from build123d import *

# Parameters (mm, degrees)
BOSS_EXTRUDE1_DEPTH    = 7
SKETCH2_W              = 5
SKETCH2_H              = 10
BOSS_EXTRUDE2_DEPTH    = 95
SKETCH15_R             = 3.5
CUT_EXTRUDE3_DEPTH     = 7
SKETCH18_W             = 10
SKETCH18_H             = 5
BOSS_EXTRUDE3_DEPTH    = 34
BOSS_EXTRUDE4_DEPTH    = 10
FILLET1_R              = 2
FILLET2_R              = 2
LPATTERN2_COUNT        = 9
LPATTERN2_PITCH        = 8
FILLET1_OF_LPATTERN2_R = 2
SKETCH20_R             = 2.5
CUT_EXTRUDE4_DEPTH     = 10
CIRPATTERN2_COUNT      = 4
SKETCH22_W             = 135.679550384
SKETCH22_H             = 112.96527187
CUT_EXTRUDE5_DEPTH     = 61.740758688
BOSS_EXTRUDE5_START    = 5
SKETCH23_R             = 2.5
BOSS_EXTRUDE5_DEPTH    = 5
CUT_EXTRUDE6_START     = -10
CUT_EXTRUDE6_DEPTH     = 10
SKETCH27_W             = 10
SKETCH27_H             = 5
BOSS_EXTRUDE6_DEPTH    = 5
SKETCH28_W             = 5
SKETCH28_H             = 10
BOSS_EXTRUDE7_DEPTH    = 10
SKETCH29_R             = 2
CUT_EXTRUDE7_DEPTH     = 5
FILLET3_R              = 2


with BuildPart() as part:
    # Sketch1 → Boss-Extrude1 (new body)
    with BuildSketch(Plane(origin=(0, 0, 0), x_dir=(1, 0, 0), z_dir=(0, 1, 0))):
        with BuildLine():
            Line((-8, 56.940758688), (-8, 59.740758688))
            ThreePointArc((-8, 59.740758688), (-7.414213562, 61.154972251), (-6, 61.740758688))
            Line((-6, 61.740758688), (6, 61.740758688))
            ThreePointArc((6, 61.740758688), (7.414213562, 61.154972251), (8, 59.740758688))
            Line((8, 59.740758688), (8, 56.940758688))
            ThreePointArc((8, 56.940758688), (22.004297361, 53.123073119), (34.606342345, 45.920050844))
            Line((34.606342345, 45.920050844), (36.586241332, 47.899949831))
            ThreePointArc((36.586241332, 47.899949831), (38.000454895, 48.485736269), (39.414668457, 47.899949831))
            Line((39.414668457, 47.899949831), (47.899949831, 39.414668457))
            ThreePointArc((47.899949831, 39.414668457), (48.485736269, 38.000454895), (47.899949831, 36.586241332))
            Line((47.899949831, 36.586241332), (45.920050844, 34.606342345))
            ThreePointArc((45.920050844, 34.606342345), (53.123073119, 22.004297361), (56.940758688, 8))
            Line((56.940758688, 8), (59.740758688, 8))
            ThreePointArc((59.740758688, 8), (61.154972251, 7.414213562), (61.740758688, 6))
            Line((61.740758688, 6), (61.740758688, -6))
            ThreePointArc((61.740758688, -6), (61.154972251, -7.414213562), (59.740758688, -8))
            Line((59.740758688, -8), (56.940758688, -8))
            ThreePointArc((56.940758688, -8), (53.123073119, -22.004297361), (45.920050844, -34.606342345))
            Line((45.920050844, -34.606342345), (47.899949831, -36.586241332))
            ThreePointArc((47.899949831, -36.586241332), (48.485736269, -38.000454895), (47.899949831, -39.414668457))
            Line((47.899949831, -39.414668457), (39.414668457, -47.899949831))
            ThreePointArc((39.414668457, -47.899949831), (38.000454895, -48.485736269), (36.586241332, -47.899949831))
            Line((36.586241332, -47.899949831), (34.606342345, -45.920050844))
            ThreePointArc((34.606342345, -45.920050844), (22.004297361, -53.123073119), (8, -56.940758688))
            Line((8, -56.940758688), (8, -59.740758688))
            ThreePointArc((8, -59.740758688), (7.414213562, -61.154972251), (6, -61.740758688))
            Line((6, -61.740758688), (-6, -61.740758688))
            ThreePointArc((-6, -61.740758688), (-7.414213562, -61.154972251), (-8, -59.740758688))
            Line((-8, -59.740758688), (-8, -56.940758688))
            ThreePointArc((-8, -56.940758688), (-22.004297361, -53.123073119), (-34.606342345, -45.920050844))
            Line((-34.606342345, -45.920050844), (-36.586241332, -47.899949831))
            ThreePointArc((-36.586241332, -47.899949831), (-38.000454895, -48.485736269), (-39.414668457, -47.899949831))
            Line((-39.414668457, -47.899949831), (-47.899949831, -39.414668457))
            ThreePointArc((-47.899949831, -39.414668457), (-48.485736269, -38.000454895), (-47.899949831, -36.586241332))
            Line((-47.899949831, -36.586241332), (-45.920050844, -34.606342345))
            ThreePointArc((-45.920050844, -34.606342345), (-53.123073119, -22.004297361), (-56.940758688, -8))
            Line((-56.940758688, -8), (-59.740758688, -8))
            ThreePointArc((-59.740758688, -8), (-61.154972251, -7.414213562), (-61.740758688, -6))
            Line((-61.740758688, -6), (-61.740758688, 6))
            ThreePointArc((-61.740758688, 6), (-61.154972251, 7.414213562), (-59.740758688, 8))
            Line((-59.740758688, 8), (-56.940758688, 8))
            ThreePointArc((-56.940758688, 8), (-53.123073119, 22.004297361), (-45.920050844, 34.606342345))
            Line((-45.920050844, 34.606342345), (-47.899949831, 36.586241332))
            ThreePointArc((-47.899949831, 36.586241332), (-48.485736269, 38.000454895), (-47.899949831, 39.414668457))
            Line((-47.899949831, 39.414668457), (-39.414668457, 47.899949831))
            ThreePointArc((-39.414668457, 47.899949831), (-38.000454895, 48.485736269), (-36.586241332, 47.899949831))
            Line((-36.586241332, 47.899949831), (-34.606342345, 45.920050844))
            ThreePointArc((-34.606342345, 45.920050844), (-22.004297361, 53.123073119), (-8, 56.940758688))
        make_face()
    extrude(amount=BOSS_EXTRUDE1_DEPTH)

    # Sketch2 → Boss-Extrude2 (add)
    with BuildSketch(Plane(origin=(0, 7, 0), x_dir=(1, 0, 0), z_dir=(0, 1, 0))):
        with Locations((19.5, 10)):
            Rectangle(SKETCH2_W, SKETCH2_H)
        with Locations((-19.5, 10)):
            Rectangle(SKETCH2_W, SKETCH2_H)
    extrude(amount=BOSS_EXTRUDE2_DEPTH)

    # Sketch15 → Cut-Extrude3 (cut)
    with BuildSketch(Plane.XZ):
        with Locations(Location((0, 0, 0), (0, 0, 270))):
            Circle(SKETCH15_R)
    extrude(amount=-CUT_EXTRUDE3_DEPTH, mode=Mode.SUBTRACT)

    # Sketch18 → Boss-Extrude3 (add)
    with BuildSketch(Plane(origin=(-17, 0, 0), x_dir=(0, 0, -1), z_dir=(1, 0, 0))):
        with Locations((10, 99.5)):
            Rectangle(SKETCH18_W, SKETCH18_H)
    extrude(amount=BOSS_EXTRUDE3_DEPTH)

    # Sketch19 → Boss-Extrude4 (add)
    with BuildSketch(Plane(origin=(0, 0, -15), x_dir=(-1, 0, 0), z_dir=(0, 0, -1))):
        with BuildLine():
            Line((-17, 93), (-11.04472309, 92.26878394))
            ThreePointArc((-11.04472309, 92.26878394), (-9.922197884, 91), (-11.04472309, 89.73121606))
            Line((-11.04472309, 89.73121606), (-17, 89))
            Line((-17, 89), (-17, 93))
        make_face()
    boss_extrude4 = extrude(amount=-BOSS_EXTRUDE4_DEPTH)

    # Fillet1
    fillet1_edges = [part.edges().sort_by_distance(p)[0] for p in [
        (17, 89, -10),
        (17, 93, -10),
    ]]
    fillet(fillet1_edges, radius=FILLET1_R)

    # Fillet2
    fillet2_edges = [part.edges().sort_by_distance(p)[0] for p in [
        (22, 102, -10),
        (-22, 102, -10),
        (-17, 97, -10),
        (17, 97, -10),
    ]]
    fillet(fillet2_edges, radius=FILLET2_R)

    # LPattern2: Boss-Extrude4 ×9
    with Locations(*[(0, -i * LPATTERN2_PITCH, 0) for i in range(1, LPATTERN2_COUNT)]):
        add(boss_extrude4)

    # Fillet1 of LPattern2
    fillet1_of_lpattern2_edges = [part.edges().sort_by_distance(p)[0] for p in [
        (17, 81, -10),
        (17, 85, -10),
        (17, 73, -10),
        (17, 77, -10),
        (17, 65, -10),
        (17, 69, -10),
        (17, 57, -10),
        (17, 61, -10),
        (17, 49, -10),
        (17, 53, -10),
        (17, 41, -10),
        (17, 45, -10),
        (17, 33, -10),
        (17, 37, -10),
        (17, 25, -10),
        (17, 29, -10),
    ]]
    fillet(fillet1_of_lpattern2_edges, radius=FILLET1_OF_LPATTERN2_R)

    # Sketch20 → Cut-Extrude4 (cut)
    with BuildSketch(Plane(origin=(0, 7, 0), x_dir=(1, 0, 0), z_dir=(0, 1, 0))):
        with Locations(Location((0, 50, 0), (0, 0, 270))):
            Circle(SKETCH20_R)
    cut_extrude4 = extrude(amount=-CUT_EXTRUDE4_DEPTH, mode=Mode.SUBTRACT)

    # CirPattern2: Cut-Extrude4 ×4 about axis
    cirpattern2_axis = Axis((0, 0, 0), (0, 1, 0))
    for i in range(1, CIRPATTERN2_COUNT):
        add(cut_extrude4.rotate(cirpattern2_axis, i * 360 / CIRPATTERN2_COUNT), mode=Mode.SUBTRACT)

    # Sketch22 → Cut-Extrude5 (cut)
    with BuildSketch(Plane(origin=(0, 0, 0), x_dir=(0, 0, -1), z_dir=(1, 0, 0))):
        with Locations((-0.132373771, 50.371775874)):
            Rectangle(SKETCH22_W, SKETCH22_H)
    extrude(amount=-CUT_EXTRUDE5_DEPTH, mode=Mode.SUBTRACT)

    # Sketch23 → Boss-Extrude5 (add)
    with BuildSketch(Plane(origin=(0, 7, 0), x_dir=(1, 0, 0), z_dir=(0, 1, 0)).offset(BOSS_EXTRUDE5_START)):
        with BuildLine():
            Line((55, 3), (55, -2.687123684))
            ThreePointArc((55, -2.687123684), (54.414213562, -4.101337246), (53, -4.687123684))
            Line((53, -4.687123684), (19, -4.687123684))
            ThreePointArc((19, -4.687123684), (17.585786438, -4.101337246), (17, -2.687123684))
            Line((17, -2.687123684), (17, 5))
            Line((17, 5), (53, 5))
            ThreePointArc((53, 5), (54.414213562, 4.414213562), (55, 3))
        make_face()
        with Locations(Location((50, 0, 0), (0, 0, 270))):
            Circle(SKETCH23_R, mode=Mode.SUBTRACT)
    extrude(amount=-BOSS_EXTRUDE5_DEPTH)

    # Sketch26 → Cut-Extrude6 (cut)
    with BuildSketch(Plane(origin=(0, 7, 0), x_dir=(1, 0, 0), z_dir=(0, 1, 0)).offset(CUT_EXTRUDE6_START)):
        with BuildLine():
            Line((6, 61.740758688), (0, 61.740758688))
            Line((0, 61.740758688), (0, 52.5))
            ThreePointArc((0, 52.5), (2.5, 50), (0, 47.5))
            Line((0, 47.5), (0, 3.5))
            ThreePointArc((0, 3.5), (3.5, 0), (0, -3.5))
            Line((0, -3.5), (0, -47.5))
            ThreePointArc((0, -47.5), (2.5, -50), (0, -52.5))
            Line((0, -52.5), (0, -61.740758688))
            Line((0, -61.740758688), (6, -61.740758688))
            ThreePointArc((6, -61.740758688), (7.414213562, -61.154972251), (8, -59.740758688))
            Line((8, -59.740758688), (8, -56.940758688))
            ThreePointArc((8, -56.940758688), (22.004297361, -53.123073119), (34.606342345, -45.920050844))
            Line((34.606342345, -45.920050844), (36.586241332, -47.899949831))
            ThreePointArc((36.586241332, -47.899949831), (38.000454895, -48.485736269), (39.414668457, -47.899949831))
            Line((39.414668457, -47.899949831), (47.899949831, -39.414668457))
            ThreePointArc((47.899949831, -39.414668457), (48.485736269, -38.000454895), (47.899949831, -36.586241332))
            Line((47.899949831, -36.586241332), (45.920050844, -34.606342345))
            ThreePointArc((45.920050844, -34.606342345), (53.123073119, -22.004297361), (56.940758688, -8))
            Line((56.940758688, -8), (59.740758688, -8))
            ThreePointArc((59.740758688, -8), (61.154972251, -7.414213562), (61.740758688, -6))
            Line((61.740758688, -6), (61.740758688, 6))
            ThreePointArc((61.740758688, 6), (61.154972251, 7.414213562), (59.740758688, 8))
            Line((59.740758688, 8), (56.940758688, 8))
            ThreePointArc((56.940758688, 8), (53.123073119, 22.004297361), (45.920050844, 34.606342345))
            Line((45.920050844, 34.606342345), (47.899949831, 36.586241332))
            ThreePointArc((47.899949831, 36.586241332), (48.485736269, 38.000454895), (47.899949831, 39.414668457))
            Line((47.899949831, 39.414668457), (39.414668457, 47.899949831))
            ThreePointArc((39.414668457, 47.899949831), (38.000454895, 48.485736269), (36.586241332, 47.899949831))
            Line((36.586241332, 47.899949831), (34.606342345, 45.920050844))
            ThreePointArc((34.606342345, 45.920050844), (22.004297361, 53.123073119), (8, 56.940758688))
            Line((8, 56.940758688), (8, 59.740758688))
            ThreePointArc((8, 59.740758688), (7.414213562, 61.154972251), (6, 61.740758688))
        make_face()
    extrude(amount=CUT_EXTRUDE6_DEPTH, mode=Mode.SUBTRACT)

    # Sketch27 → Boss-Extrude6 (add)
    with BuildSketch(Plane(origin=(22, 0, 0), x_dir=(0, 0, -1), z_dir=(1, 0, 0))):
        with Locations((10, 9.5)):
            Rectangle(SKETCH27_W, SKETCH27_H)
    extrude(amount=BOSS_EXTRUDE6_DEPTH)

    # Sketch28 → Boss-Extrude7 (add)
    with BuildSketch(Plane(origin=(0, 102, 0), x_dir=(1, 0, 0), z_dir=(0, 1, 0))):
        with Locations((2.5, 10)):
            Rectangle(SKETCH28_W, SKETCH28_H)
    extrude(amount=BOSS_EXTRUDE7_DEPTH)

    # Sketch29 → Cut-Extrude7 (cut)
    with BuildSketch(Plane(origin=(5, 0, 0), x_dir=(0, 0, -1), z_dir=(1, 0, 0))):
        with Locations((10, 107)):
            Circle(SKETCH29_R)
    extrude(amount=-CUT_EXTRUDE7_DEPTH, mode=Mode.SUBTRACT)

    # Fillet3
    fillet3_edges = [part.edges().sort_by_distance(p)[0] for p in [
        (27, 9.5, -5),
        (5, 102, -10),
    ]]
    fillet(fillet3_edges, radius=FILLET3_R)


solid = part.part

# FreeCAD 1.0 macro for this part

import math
import FreeCAD as App
import Part
import Sketcher

V = App.Vector
Q = App.Units.Quantity


def edges_at(feature, points):
    """Names of the edges that pass closest to the given points."""
    edges = feature.Shape.Edges
    near = lambda p: min(range(len(edges)), key=lambda i: edges[i].distToShape(Part.Vertex(*p))[0])
    return sorted({f"Edge{near(p) + 1}" for p in points})

doc = App.newDocument("Part")
body = doc.addObject("PartDesign::Body", "Body")

# Sketch on XZ plane
sketch1 = body.newObject("Sketcher::SketchObject", "Sketch")
sketch1.AttachmentSupport = (doc.getObject("XZ_Plane"), [""])
sketch1.MapMode = "FlatFace"
sketch1.addGeometry(Part.LineSegment(V(-8, -59.7, 0), V(-8, -56.9, 0)), False)
sketch1.addGeometry(Part.ArcOfCircle(Part.Circle(V(0, 0, 0), V(0, 0, 1), 57.5), math.radians(-127), math.radians(-98)), False)
sketch1.addGeometry(Part.LineSegment(V(-34.6, -45.9, 0), V(-36.6, -47.9, 0)), False)
sketch1.addGeometry(Part.ArcOfCircle(Part.Circle(V(-38, -46.5, 0), V(0, 0, 1), 2), math.radians(-135), math.radians(-45)), False)
sketch1.addGeometry(Part.LineSegment(V(-39.4, -47.9, 0), V(-47.9, -39.4, 0)), False)
sketch1.addGeometry(Part.ArcOfCircle(Part.Circle(V(-46.5, -38, 0), V(0, 0, 1), 2), math.radians(135), math.radians(225)), False)
sketch1.addGeometry(Part.LineSegment(V(-47.9, -36.6, 0), V(-45.9, -34.6, 0)), False)
sketch1.addGeometry(Part.ArcOfCircle(Part.Circle(V(0, 0, 0), V(0, 0, 1), 57.5), math.radians(-172), math.radians(-143)), False)
sketch1.addGeometry(Part.LineSegment(V(-56.9, -8, 0), V(-59.7, -8, 0)), False)
sketch1.addGeometry(Part.ArcOfCircle(Part.Circle(V(-59.7, -6, 0), V(0, 0, 1), 2), math.radians(180), math.radians(270)), False)
sketch1.addGeometry(Part.LineSegment(V(-61.7, -6, 0), V(-61.7, 6, 0)), False)
sketch1.addGeometry(Part.ArcOfCircle(Part.Circle(V(-59.7, 6, 0), V(0, 0, 1), 2), math.radians(90), math.radians(180)), False)
sketch1.addGeometry(Part.LineSegment(V(-59.7, 8, 0), V(-56.9, 8, 0)), False)
sketch1.addGeometry(Part.ArcOfCircle(Part.Circle(V(0, 0, 0), V(0, 0, 1), 57.5), math.radians(143), math.radians(172)), False)
sketch1.addGeometry(Part.LineSegment(V(-45.9, 34.6, 0), V(-47.9, 36.6, 0)), False)
sketch1.addGeometry(Part.ArcOfCircle(Part.Circle(V(-46.5, 38, 0), V(0, 0, 1), 2), math.radians(135), math.radians(225)), False)
sketch1.addGeometry(Part.LineSegment(V(-47.9, 39.4, 0), V(-39.4, 47.9, 0)), False)
sketch1.addGeometry(Part.ArcOfCircle(Part.Circle(V(-38, 46.5, 0), V(0, 0, 1), 2), math.radians(45), math.radians(135)), False)
sketch1.addGeometry(Part.LineSegment(V(-36.6, 47.9, 0), V(-34.6, 45.9, 0)), False)
sketch1.addGeometry(Part.ArcOfCircle(Part.Circle(V(0, 0, 0), V(0, 0, 1), 57.5), math.radians(98), math.radians(127)), False)
sketch1.addGeometry(Part.LineSegment(V(-8, 56.9, 0), V(-8, 59.7, 0)), False)
sketch1.addGeometry(Part.ArcOfCircle(Part.Circle(V(-6, 59.7, 0), V(0, 0, 1), 2), math.radians(90), math.radians(180)), False)
sketch1.addGeometry(Part.LineSegment(V(-6, 61.7, 0), V(6, 61.7, 0)), False)
sketch1.addGeometry(Part.ArcOfCircle(Part.Circle(V(6, 59.7, 0), V(0, 0, 1), 2), math.radians(0), math.radians(90)), False)
sketch1.addGeometry(Part.LineSegment(V(8, 59.7, 0), V(8, 56.9, 0)), False)
sketch1.addGeometry(Part.ArcOfCircle(Part.Circle(V(0, 0, 0), V(0, 0, 1), 57.5), math.radians(53), math.radians(82)), False)
sketch1.addGeometry(Part.LineSegment(V(34.6, 45.9, 0), V(36.6, 47.9, 0)), False)
sketch1.addGeometry(Part.ArcOfCircle(Part.Circle(V(38, 46.5, 0), V(0, 0, 1), 2), math.radians(45), math.radians(135)), False)
sketch1.addGeometry(Part.LineSegment(V(39.4, 47.9, 0), V(47.9, 39.4, 0)), False)
sketch1.addGeometry(Part.ArcOfCircle(Part.Circle(V(46.5, 38, 0), V(0, 0, 1), 2), math.radians(-45), math.radians(45)), False)
sketch1.addGeometry(Part.LineSegment(V(47.9, 36.6, 0), V(45.9, 34.6, 0)), False)
sketch1.addGeometry(Part.ArcOfCircle(Part.Circle(V(0, 0, 0), V(0, 0, 1), 57.5), math.radians(8), math.radians(37)), False)
sketch1.addGeometry(Part.LineSegment(V(56.9, 8, 0), V(59.7, 8, 0)), False)
sketch1.addGeometry(Part.ArcOfCircle(Part.Circle(V(59.7, 6, 0), V(0, 0, 1), 2), math.radians(0), math.radians(90)), False)
sketch1.addGeometry(Part.LineSegment(V(61.7, 6, 0), V(61.7, -6, 0)), False)
sketch1.addGeometry(Part.ArcOfCircle(Part.Circle(V(59.7, -6, 0), V(0, 0, 1), 2), math.radians(-90), math.radians(0)), False)
sketch1.addGeometry(Part.LineSegment(V(59.7, -8, 0), V(56.9, -8, 0)), False)
sketch1.addGeometry(Part.ArcOfCircle(Part.Circle(V(0, 0, 0), V(0, 0, 1), 57.5), math.radians(-37), math.radians(-8)), False)
sketch1.addGeometry(Part.LineSegment(V(45.9, -34.6, 0), V(47.9, -36.6, 0)), False)
sketch1.addGeometry(Part.ArcOfCircle(Part.Circle(V(46.5, -38, 0), V(0, 0, 1), 2), math.radians(-45), math.radians(45)), False)
sketch1.addGeometry(Part.LineSegment(V(47.9, -39.4, 0), V(39.4, -47.9, 0)), False)
sketch1.addGeometry(Part.ArcOfCircle(Part.Circle(V(38, -46.5, 0), V(0, 0, 1), 2), math.radians(-135), math.radians(-45)), False)
sketch1.addGeometry(Part.LineSegment(V(36.6, -47.9, 0), V(34.6, -45.9, 0)), False)
sketch1.addGeometry(Part.ArcOfCircle(Part.Circle(V(0, 0, 0), V(0, 0, 1), 57.5), math.radians(-82), math.radians(-53)), False)
sketch1.addGeometry(Part.LineSegment(V(8, -56.9, 0), V(8, -59.7, 0)), False)
sketch1.addGeometry(Part.ArcOfCircle(Part.Circle(V(6, -59.7, 0), V(0, 0, 1), 2), math.radians(-90), math.radians(0)), False)
sketch1.addGeometry(Part.LineSegment(V(6, -61.7, 0), V(-6, -61.7, 0)), False)
sketch1.addGeometry(Part.ArcOfCircle(Part.Circle(V(-6, -59.7, 0), V(0, 0, 1), 2), math.radians(180), math.radians(270)), False)
sketch1.addConstraint(Sketcher.Constraint("Coincident", 0, 2, 1, 2))
sketch1.addConstraint(Sketcher.Constraint("Coincident", 1, 1, 2, 1))
sketch1.addConstraint(Sketcher.Constraint("Tangent", 2, 2, 3, 2))
sketch1.addConstraint(Sketcher.Constraint("Tangent", 3, 1, 4, 1))
sketch1.addConstraint(Sketcher.Constraint("Tangent", 4, 2, 5, 2))
sketch1.addConstraint(Sketcher.Constraint("Tangent", 5, 1, 6, 1))
sketch1.addConstraint(Sketcher.Constraint("Coincident", 6, 2, 7, 2))
sketch1.addConstraint(Sketcher.Constraint("Coincident", 7, 1, 8, 1))
sketch1.addConstraint(Sketcher.Constraint("Tangent", 8, 2, 9, 2))
sketch1.addConstraint(Sketcher.Constraint("Tangent", 9, 1, 10, 1))
sketch1.addConstraint(Sketcher.Constraint("Tangent", 10, 2, 11, 2))
sketch1.addConstraint(Sketcher.Constraint("Tangent", 11, 1, 12, 1))
sketch1.addConstraint(Sketcher.Constraint("Coincident", 12, 2, 13, 2))
sketch1.addConstraint(Sketcher.Constraint("Coincident", 13, 1, 14, 1))
sketch1.addConstraint(Sketcher.Constraint("Tangent", 14, 2, 15, 2))
sketch1.addConstraint(Sketcher.Constraint("Tangent", 15, 1, 16, 1))
sketch1.addConstraint(Sketcher.Constraint("Tangent", 16, 2, 17, 2))
sketch1.addConstraint(Sketcher.Constraint("Tangent", 17, 1, 18, 1))
sketch1.addConstraint(Sketcher.Constraint("Coincident", 18, 2, 19, 2))
sketch1.addConstraint(Sketcher.Constraint("Coincident", 19, 1, 20, 1))
sketch1.addConstraint(Sketcher.Constraint("Tangent", 20, 2, 21, 2))
sketch1.addConstraint(Sketcher.Constraint("Tangent", 21, 1, 22, 1))
sketch1.addConstraint(Sketcher.Constraint("Tangent", 22, 2, 23, 2))
sketch1.addConstraint(Sketcher.Constraint("Tangent", 23, 1, 24, 1))
sketch1.addConstraint(Sketcher.Constraint("Coincident", 24, 2, 25, 2))
sketch1.addConstraint(Sketcher.Constraint("Coincident", 25, 1, 26, 1))
sketch1.addConstraint(Sketcher.Constraint("Tangent", 26, 2, 27, 2))
sketch1.addConstraint(Sketcher.Constraint("Tangent", 27, 1, 28, 1))
sketch1.addConstraint(Sketcher.Constraint("Tangent", 28, 2, 29, 2))
sketch1.addConstraint(Sketcher.Constraint("Tangent", 29, 1, 30, 1))
sketch1.addConstraint(Sketcher.Constraint("Coincident", 30, 2, 31, 2))
sketch1.addConstraint(Sketcher.Constraint("Coincident", 31, 1, 32, 1))
sketch1.addConstraint(Sketcher.Constraint("Tangent", 32, 2, 33, 2))
sketch1.addConstraint(Sketcher.Constraint("Tangent", 33, 1, 34, 1))
sketch1.addConstraint(Sketcher.Constraint("Tangent", 34, 2, 35, 2))
sketch1.addConstraint(Sketcher.Constraint("Tangent", 35, 1, 36, 1))
sketch1.addConstraint(Sketcher.Constraint("Coincident", 36, 2, 37, 2))
sketch1.addConstraint(Sketcher.Constraint("Coincident", 37, 1, 38, 1))
sketch1.addConstraint(Sketcher.Constraint("Tangent", 38, 2, 39, 2))
sketch1.addConstraint(Sketcher.Constraint("Tangent", 39, 1, 40, 1))
sketch1.addConstraint(Sketcher.Constraint("Tangent", 40, 2, 41, 2))
sketch1.addConstraint(Sketcher.Constraint("Tangent", 41, 1, 42, 1))
sketch1.addConstraint(Sketcher.Constraint("Coincident", 42, 2, 43, 2))
sketch1.addConstraint(Sketcher.Constraint("Coincident", 43, 1, 44, 1))
sketch1.addConstraint(Sketcher.Constraint("Tangent", 44, 2, 45, 2))
sketch1.addConstraint(Sketcher.Constraint("Tangent", 45, 1, 46, 1))
sketch1.addConstraint(Sketcher.Constraint("Tangent", 46, 2, 47, 2))
sketch1.addConstraint(Sketcher.Constraint("Tangent", 47, 1, 0, 1))
sketch1.addConstraint(Sketcher.Constraint("Vertical", 0))
sketch1.addConstraint(Sketcher.Constraint("Horizontal", 8))
sketch1.addConstraint(Sketcher.Constraint("Vertical", 10))
sketch1.addConstraint(Sketcher.Constraint("Horizontal", 12))
sketch1.addConstraint(Sketcher.Constraint("Vertical", 20))
sketch1.addConstraint(Sketcher.Constraint("Horizontal", 22))
sketch1.addConstraint(Sketcher.Constraint("Vertical", 24))
sketch1.addConstraint(Sketcher.Constraint("Horizontal", 32))
sketch1.addConstraint(Sketcher.Constraint("Vertical", 34))
sketch1.addConstraint(Sketcher.Constraint("Horizontal", 36))
sketch1.addConstraint(Sketcher.Constraint("Vertical", 44))
sketch1.addConstraint(Sketcher.Constraint("Horizontal", 46))
sketch1.addConstraint(Sketcher.Constraint("Coincident", 1, 3, -1, 1))
sketch1.addConstraint(Sketcher.Constraint("Coincident", 7, 3, -1, 1))
sketch1.addConstraint(Sketcher.Constraint("Coincident", 13, 3, -1, 1))
sketch1.addConstraint(Sketcher.Constraint("Coincident", 19, 3, -1, 1))
sketch1.addConstraint(Sketcher.Constraint("Coincident", 25, 3, -1, 1))
sketch1.addConstraint(Sketcher.Constraint("Coincident", 31, 3, -1, 1))
sketch1.addConstraint(Sketcher.Constraint("Coincident", 37, 3, -1, 1))
sketch1.addConstraint(Sketcher.Constraint("Coincident", 43, 3, -1, 1))
sketch1.addConstraint(Sketcher.Constraint("Equal", 3, 5))
sketch1.addConstraint(Sketcher.Constraint("Equal", 1, 7))
sketch1.addConstraint(Sketcher.Constraint("Equal", 5, 9))
sketch1.addConstraint(Sketcher.Constraint("Equal", 9, 11))
sketch1.addConstraint(Sketcher.Constraint("Equal", 7, 13))
sketch1.addConstraint(Sketcher.Constraint("Equal", 11, 15))
sketch1.addConstraint(Sketcher.Constraint("Equal", 15, 17))
sketch1.addConstraint(Sketcher.Constraint("Equal", 13, 19))
sketch1.addConstraint(Sketcher.Constraint("Equal", 17, 21))
sketch1.addConstraint(Sketcher.Constraint("Equal", 21, 23))
sketch1.addConstraint(Sketcher.Constraint("Equal", 19, 25))
sketch1.addConstraint(Sketcher.Constraint("Equal", 23, 27))
sketch1.addConstraint(Sketcher.Constraint("Equal", 27, 29))
sketch1.addConstraint(Sketcher.Constraint("Equal", 25, 31))
sketch1.addConstraint(Sketcher.Constraint("Equal", 29, 33))
sketch1.addConstraint(Sketcher.Constraint("Equal", 33, 35))
sketch1.addConstraint(Sketcher.Constraint("Equal", 31, 37))
sketch1.addConstraint(Sketcher.Constraint("Equal", 35, 39))
sketch1.addConstraint(Sketcher.Constraint("Equal", 39, 41))
sketch1.addConstraint(Sketcher.Constraint("Equal", 37, 43))
sketch1.addConstraint(Sketcher.Constraint("Equal", 41, 45))
sketch1.addConstraint(Sketcher.Constraint("Equal", 45, 47))
sketch1.addConstraint(Sketcher.Constraint("Symmetric", 3, 3, 27, 3, -1, 1))
sketch1.addConstraint(Sketcher.Constraint("Symmetric", 5, 3, 29, 3, -1, 1))
sketch1.addConstraint(Sketcher.Constraint("Symmetric", 9, 3, 33, 3, -1, 1))
sketch1.addConstraint(Sketcher.Constraint("Symmetric", 15, 3, 39, 3, -1, 1))
sketch1.addConstraint(Sketcher.Constraint("Symmetric", 17, 3, 41, 3, -1, 1))
sketch1.addConstraint(Sketcher.Constraint("Symmetric", 21, 3, 45, 3, -1, 1))
sketch1.addConstraint(Sketcher.Constraint("Symmetric", 17, 3, 27, 3, -2))
sketch1.addConstraint(Sketcher.Constraint("Symmetric", 15, 3, 29, 3, -2))
sketch1.addConstraint(Sketcher.Constraint("Perpendicular", 2, 4))
sketch1.addConstraint(Sketcher.Constraint("Perpendicular", 4, 6))
sketch1.addConstraint(Sketcher.Constraint("Perpendicular", 6, 14))
sketch1.addConstraint(Sketcher.Constraint("Perpendicular", 14, 16))
sketch1.addConstraint(Sketcher.Constraint("Perpendicular", 16, 18))
sketch1.addConstraint(Sketcher.Constraint("Perpendicular", 18, 26))
sketch1.addConstraint(Sketcher.Constraint("Perpendicular", 28, 30))
sketch1.addConstraint(Sketcher.Constraint("Perpendicular", 30, 38))
sketch1.addConstraint(Sketcher.Constraint("Perpendicular", 40, 42))
sketch1.addConstraint(Sketcher.Constraint("Horizontal", 11, 3, 33, 3))
sketch1.addConstraint(Sketcher.Constraint("Horizontal", 9, 3, 35, 3))
sketch1.addConstraint(Sketcher.Constraint("Horizontal", 19, 1, 24, 2))
sketch1.addConstraint(Sketcher.Constraint("Horizontal", 0, 2, 43, 1))
sketch1.addConstraint(Sketcher.Constraint("Equal", 36, 0))
sketch1.addConstraint(Sketcher.Constraint("Equal", 46, 10))
sketch1.addConstraint(Sketcher.Constraint("Equal", 2, 6))
sketch1.addConstraint(Sketcher.Constraint("Radius", 3, 2.0))
sketch1.addConstraint(Sketcher.Constraint("Radius", 1, 57.5))
sketch1.addConstraint(Sketcher.Constraint("DistanceX", 22, 1, 22, 2, 12.0))
sketch1.addConstraint(Sketcher.Constraint("Distance", 4, 12.0))
sketch1.addConstraint(Sketcher.Constraint("DistanceX", 8, 2, 8, 1, 2.8))
sketch1.addConstraint(Sketcher.Constraint("Distance", 2, 2.8))
pad1 = body.newObject("PartDesign::Pad", "Pad")
pad1.Profile = sketch1
pad1.Length = 7
pad1.Reversed = True

# Sketch on XZ plane
sketch2 = body.newObject("Sketcher::SketchObject", "Sketch001")
sketch2.AttachmentSupport = (doc.getObject("XZ_Plane"), [""])
sketch2.MapMode = "FlatFace"
sketch2.AttachmentOffset = App.Placement(V(0, 0, -7), App.Rotation())
sketch2.addGeometry(Part.LineSegment(V(17, -15, 0), V(17, -5, 0)), False)
sketch2.addGeometry(Part.LineSegment(V(17, -5, 0), V(22, -5, 0)), False)
sketch2.addGeometry(Part.LineSegment(V(22, -5, 0), V(22, -15, 0)), False)
sketch2.addGeometry(Part.LineSegment(V(22, -15, 0), V(17, -15, 0)), False)
sketch2.addGeometry(Part.LineSegment(V(-22, -15, 0), V(-22, -5, 0)), False)
sketch2.addGeometry(Part.LineSegment(V(-22, -5, 0), V(-17, -5, 0)), False)
sketch2.addGeometry(Part.LineSegment(V(-17, -5, 0), V(-17, -15, 0)), False)
sketch2.addGeometry(Part.LineSegment(V(-17, -15, 0), V(-22, -15, 0)), False)
sketch2.addConstraint(Sketcher.Constraint("Coincident", 0, 2, 1, 1))
sketch2.addConstraint(Sketcher.Constraint("Coincident", 1, 2, 2, 1))
sketch2.addConstraint(Sketcher.Constraint("Coincident", 2, 2, 3, 1))
sketch2.addConstraint(Sketcher.Constraint("Coincident", 3, 2, 0, 1))
sketch2.addConstraint(Sketcher.Constraint("Coincident", 4, 2, 5, 1))
sketch2.addConstraint(Sketcher.Constraint("Coincident", 5, 2, 6, 1))
sketch2.addConstraint(Sketcher.Constraint("Coincident", 6, 2, 7, 1))
sketch2.addConstraint(Sketcher.Constraint("Coincident", 7, 2, 4, 1))
sketch2.addConstraint(Sketcher.Constraint("Vertical", 0))
sketch2.addConstraint(Sketcher.Constraint("Horizontal", 1))
sketch2.addConstraint(Sketcher.Constraint("Vertical", 2))
sketch2.addConstraint(Sketcher.Constraint("Horizontal", 3))
sketch2.addConstraint(Sketcher.Constraint("Vertical", 4))
sketch2.addConstraint(Sketcher.Constraint("Horizontal", 5))
sketch2.addConstraint(Sketcher.Constraint("Vertical", 6))
sketch2.addConstraint(Sketcher.Constraint("Horizontal", 7))
sketch2.addConstraint(Sketcher.Constraint("Symmetric", 1, 2, 4, 2, -2))
sketch2.addConstraint(Sketcher.Constraint("Symmetric", 3, 2, 6, 2, -2))
sketch2.addConstraint(Sketcher.Constraint("DistanceX", 1, 1, 1, 2, 5.0))
sketch2.addConstraint(Sketcher.Constraint("DistanceY", 0, 1, 0, 2, 10.0))
sketch2.addConstraint(Sketcher.Constraint("DistanceX", -1, 1, 0, 2, 17.0))
sketch2.addConstraint(Sketcher.Constraint("DistanceY", 0, 2, -1, 1, 5.0))
pad2 = body.newObject("PartDesign::Pad", "Pad001")
pad2.Profile = sketch2
pad2.Length = 95
pad2.Reversed = True

# Sketch on XZ plane
sketch3 = body.newObject("Sketcher::SketchObject", "Sketch002")
sketch3.AttachmentSupport = (doc.getObject("XZ_Plane"), [""])
sketch3.MapMode = "FlatFace"
sketch3.addGeometry(Part.Circle(V(0, 0, 0), V(0, 0, 1), 3.5), False)
sketch3.addConstraint(Sketcher.Constraint("Coincident", 0, 3, -1, 1))
sketch3.addConstraint(Sketcher.Constraint("Diameter", 0, 7.0))
pocket1 = body.newObject("PartDesign::Pocket", "Pocket")
pocket1.Profile = sketch3
pocket1.Length = 7

# Sketch on YZ plane
sketch4 = body.newObject("Sketcher::SketchObject", "Sketch003")
sketch4.AttachmentSupport = (doc.getObject("YZ_Plane"), [""])
sketch4.MapMode = "FlatFace"
sketch4.AttachmentOffset = App.Placement(V(0, 0, -17), App.Rotation())
sketch4.addGeometry(Part.LineSegment(V(102, -5, 0), V(97, -5, 0)), False)
sketch4.addGeometry(Part.LineSegment(V(97, -5, 0), V(97, -15, 0)), False)
sketch4.addGeometry(Part.LineSegment(V(97, -15, 0), V(102, -15, 0)), False)
sketch4.addGeometry(Part.LineSegment(V(102, -15, 0), V(102, -5, 0)), False)
sketch4.addConstraint(Sketcher.Constraint("Coincident", 0, 2, 1, 1))
sketch4.addConstraint(Sketcher.Constraint("Coincident", 1, 2, 2, 1))
sketch4.addConstraint(Sketcher.Constraint("Coincident", 2, 2, 3, 1))
sketch4.addConstraint(Sketcher.Constraint("Coincident", 3, 2, 0, 1))
sketch4.addConstraint(Sketcher.Constraint("Horizontal", 0))
sketch4.addConstraint(Sketcher.Constraint("Vertical", 1))
sketch4.addConstraint(Sketcher.Constraint("Horizontal", 2))
sketch4.addConstraint(Sketcher.Constraint("Vertical", 3))
sketch4.addConstraint(Sketcher.Constraint("DistanceX", 0, 2, 0, 1, 5.0))
sketch4.addConstraint(Sketcher.Constraint("DistanceY", 1, 2, 1, 1, 10.0))
sketch4.addConstraint(Sketcher.Constraint("DistanceX", -1, 1, 0, 2, 97.0))
sketch4.addConstraint(Sketcher.Constraint("DistanceY", 0, 2, -1, 1, 5.0))
pad3 = body.newObject("PartDesign::Pad", "Pad002")
pad3.Profile = sketch4
pad3.Length = 34

# Sketch on XY plane
sketch5 = body.newObject("Sketcher::SketchObject", "Sketch004")
sketch5.AttachmentSupport = (doc.getObject("XY_Plane"), [""])
sketch5.MapMode = "FlatFace"
sketch5.AttachmentOffset = App.Placement(V(0, 0, -15), App.Rotation())
sketch5.addGeometry(Part.LineSegment(V(11, 92.3, 0), V(17, 93, 0)), False)
sketch5.addGeometry(Part.LineSegment(V(17, 93, 0), V(17, 89, 0)), False)
sketch5.addGeometry(Part.LineSegment(V(17, 89, 0), V(11, 89.7, 0)), False)
sketch5.addGeometry(Part.ArcOfCircle(Part.Circle(V(11.2, 91, 0), V(0, 0, 1), 1.3), math.radians(97), math.radians(263)), False)
sketch5.addConstraint(Sketcher.Constraint("Coincident", 0, 2, 1, 1))
sketch5.addConstraint(Sketcher.Constraint("Coincident", 1, 2, 2, 1))
sketch5.addConstraint(Sketcher.Constraint("Tangent", 2, 2, 3, 2))
sketch5.addConstraint(Sketcher.Constraint("Tangent", 3, 1, 0, 1))
sketch5.addConstraint(Sketcher.Constraint("Vertical", 1))
sketch5.addConstraint(Sketcher.Constraint("Vertical", 2, 2, 3, 1))
sketch5.addConstraint(Sketcher.Constraint("DistanceY", 1, 2, 1, 1, 4.0))
sketch5.addConstraint(Sketcher.Constraint("Angle", 0, Q("7 deg")))
sketch5.addConstraint(Sketcher.Constraint("Distance", 0, 6.0))
sketch5.addConstraint(Sketcher.Constraint("DistanceY", -1, 1, 3, 3, 91.0))
sketch5.addConstraint(Sketcher.Constraint("DistanceX", -1, 1, 0, 2, 17.0))
pad4 = body.newObject("PartDesign::Pad", "Pad003")
pad4.Profile = sketch5
pad4.Length = 10
doc.recompute()

fillet = body.newObject("PartDesign::Fillet", "Fillet")
fillet.Base = (pad4, edges_at(pad4, [(17, 89, -10), (17, 93, -10)]))
fillet.Radius = 2
doc.recompute()

fillet2 = body.newObject("PartDesign::Fillet", "Fillet001")
fillet2.Base = (fillet, edges_at(fillet, [
    (22, 102, -10),
    (-22, 102, -10),
    (-17, 97, -10),
    (17, 97, -10),
]))
fillet2.Radius = 2
doc.recompute()

linearpattern = body.newObject("PartDesign::LinearPattern", "LinearPattern")
linearpattern.Originals = [pad4]
linearpattern.Direction = (doc.getObject("Y_Axis"), [""])
linearpattern.Mode = "offset"
linearpattern.Offset = 8
linearpattern.Occurrences = 9
linearpattern.Reversed = True
body.Tip = linearpattern
doc.recompute()

fillet3 = body.newObject("PartDesign::Fillet", "Fillet002")
fillet3.Base = (linearpattern, edges_at(linearpattern, [
    (17, 81, -10),
    (17, 85, -10),
    (17, 73, -10),
    (17, 77, -10),
    (17, 65, -10),
    (17, 69, -10),
    (17, 57, -10),
    (17, 61, -10),
    (17, 49, -10),
    (17, 53, -10),
    (17, 41, -10),
    (17, 45, -10),
    (17, 33, -10),
    (17, 37, -10),
    (17, 25, -10),
    (17, 29, -10),
]))
fillet3.Radius = 2

# Sketch on XZ plane
sketch6 = body.newObject("Sketcher::SketchObject", "Sketch005")
sketch6.AttachmentSupport = (doc.getObject("XZ_Plane"), [""])
sketch6.MapMode = "FlatFace"
sketch6.AttachmentOffset = App.Placement(V(0, 0, -7), App.Rotation())
sketch6.addGeometry(Part.Circle(V(0, -50, 0), V(0, 0, 1), 2.5), False)
sketch6.addConstraint(Sketcher.Constraint("PointOnObject", 0, 3, -2))
sketch6.addConstraint(Sketcher.Constraint("Diameter", 0, 5.0))
sketch6.addConstraint(Sketcher.Constraint("DistanceY", 0, 3, -1, 1, 50.0))
pocket2 = body.newObject("PartDesign::Pocket", "Pocket001")
pocket2.Profile = sketch6
pocket2.Length = 10
pocket2.Reversed = True
doc.recompute()

polarpattern = body.newObject("PartDesign::PolarPattern", "PolarPattern")
polarpattern.Originals = [pocket2]
polarpattern.Axis = (doc.getObject("Y_Axis"), [""])
polarpattern.Angle = 360
polarpattern.Occurrences = 4
body.Tip = polarpattern

# Sketch on YZ plane
sketch7 = body.newObject("Sketcher::SketchObject", "Sketch006")
sketch7.AttachmentSupport = (doc.getObject("YZ_Plane"), [""])
sketch7.MapMode = "FlatFace"
sketch7.addGeometry(Part.LineSegment(V(107, 68, 0), V(-6, 68, 0)), False)
sketch7.addGeometry(Part.LineSegment(V(-6, 68, 0), V(-6, -68, 0)), False)
sketch7.addGeometry(Part.LineSegment(V(-6, -68, 0), V(107, -68, 0)), False)
sketch7.addGeometry(Part.LineSegment(V(107, -68, 0), V(107, 68, 0)), False)
sketch7.addConstraint(Sketcher.Constraint("Coincident", 0, 2, 1, 1))
sketch7.addConstraint(Sketcher.Constraint("Coincident", 1, 2, 2, 1))
sketch7.addConstraint(Sketcher.Constraint("Coincident", 2, 2, 3, 1))
sketch7.addConstraint(Sketcher.Constraint("Coincident", 3, 2, 0, 1))
sketch7.addConstraint(Sketcher.Constraint("Horizontal", 0))
sketch7.addConstraint(Sketcher.Constraint("Vertical", 1))
sketch7.addConstraint(Sketcher.Constraint("Horizontal", 2))
sketch7.addConstraint(Sketcher.Constraint("Vertical", 3))
sketch7.addConstraint(Sketcher.Constraint("DistanceX", 0, 2, 0, 1, 112.965272))
sketch7.addConstraint(Sketcher.Constraint("DistanceY", 1, 2, 1, 1, 135.67955))
sketch7.addConstraint(Sketcher.Constraint("DistanceY", 1, 2, -1, 1, 67.707401))
sketch7.addConstraint(Sketcher.Constraint("DistanceX", 0, 2, -1, 1, 6.11086))
pocket3 = body.newObject("PartDesign::Pocket", "Pocket002")
pocket3.Profile = sketch7
pocket3.Length = 61.740759

# Sketch on XZ plane
sketch8 = body.newObject("Sketcher::SketchObject", "Sketch007")
sketch8.AttachmentSupport = (doc.getObject("XZ_Plane"), [""])
sketch8.MapMode = "FlatFace"
sketch8.AttachmentOffset = App.Placement(V(0, 0, -12), App.Rotation())
sketch8.addGeometry(Part.LineSegment(V(55, 2.7, 0), V(55, -3, 0)), False)
sketch8.addGeometry(Part.ArcOfCircle(Part.Circle(V(53, -3, 0), V(0, 0, 1), 2), math.radians(-90), math.radians(0)), False)
sketch8.addGeometry(Part.LineSegment(V(53, -5, 0), V(17, -5, 0)), False)
sketch8.addGeometry(Part.LineSegment(V(17, -5, 0), V(17, 2.7, 0)), False)
sketch8.addGeometry(Part.ArcOfCircle(Part.Circle(V(19, 2.7, 0), V(0, 0, 1), 2), math.radians(90), math.radians(180)), False)
sketch8.addGeometry(Part.LineSegment(V(19, 4.7, 0), V(53, 4.7, 0)), False)
sketch8.addGeometry(Part.ArcOfCircle(Part.Circle(V(53, 2.7, 0), V(0, 0, 1), 2), math.radians(0), math.radians(90)), False)
sketch8.addGeometry(Part.Circle(V(50, 0, 0), V(0, 0, 1), 2.5), False)
sketch8.addConstraint(Sketcher.Constraint("Tangent", 0, 2, 1, 2))
sketch8.addConstraint(Sketcher.Constraint("Tangent", 1, 1, 2, 1))
sketch8.addConstraint(Sketcher.Constraint("Coincident", 2, 2, 3, 1))
sketch8.addConstraint(Sketcher.Constraint("Tangent", 3, 2, 4, 2))
sketch8.addConstraint(Sketcher.Constraint("Tangent", 4, 1, 5, 1))
sketch8.addConstraint(Sketcher.Constraint("Tangent", 5, 2, 6, 2))
sketch8.addConstraint(Sketcher.Constraint("Tangent", 6, 1, 0, 1))
sketch8.addConstraint(Sketcher.Constraint("Vertical", 0))
sketch8.addConstraint(Sketcher.Constraint("Horizontal", 2))
sketch8.addConstraint(Sketcher.Constraint("Vertical", 3))
sketch8.addConstraint(Sketcher.Constraint("Horizontal", 5))
sketch8.addConstraint(Sketcher.Constraint("Equal", 1, 4))
sketch8.addConstraint(Sketcher.Constraint("Equal", 4, 6))
sketch8.addConstraint(Sketcher.Constraint("PointOnObject", 7, 3, -1))
sketch8.addConstraint(Sketcher.Constraint("Diameter", 7, 5.0))
sketch8.addConstraint(Sketcher.Constraint("Radius", 1, 2.0))
sketch8.addConstraint(Sketcher.Constraint("DistanceX", 2, 2, 2, 1, 36.0))
sketch8.addConstraint(Sketcher.Constraint("DistanceX", -1, 1, 1, 3, 53.0))
sketch8.addConstraint(Sketcher.Constraint("DistanceY", 1, 3, -1, 1, 3.0))
sketch8.addConstraint(Sketcher.Constraint("DistanceX", -1, 1, 7, 3, 50.0))
sketch8.addConstraint(Sketcher.Constraint("DistanceY", 0, 2, 0, 1, 5.687124))
pad5 = body.newObject("PartDesign::Pad", "Pad004")
pad5.Profile = sketch8
pad5.Length = 5

# Sketch on XZ plane
sketch9 = body.newObject("Sketcher::SketchObject", "Sketch008")
sketch9.AttachmentSupport = (doc.getObject("XZ_Plane"), [""])
sketch9.MapMode = "FlatFace"
sketch9.AttachmentOffset = App.Placement(V(0, 0, 3), App.Rotation())
sketch9.addGeometry(Part.LineSegment(V(6, -61.7, 0), V(0, -61.7, 0)), False)
sketch9.addGeometry(Part.LineSegment(V(0, -61.7, 0), V(0, -52.5, 0)), False)
sketch9.addGeometry(Part.ArcOfCircle(Part.Circle(V(0, -50, 0), V(0, 0, 1), 2.5), math.radians(-90), math.radians(90)), False)
sketch9.addGeometry(Part.LineSegment(V(0, -47.5, 0), V(0, -3.5, 0)), False)
sketch9.addGeometry(Part.ArcOfCircle(Part.Circle(V(0, 0, 0), V(0, 0, 1), 3.5), math.radians(-90), math.radians(90)), False)
sketch9.addGeometry(Part.LineSegment(V(0, 3.5, 0), V(0, 47.5, 0)), False)
sketch9.addGeometry(Part.ArcOfCircle(Part.Circle(V(0, 50, 0), V(0, 0, 1), 2.5), math.radians(-90), math.radians(90)), False)
sketch9.addGeometry(Part.LineSegment(V(0, 52.5, 0), V(0, 61.7, 0)), False)
sketch9.addGeometry(Part.LineSegment(V(0, 61.7, 0), V(6, 61.7, 0)), False)
sketch9.addGeometry(Part.ArcOfCircle(Part.Circle(V(6, 59.7, 0), V(0, 0, 1), 2), math.radians(0), math.radians(90)), False)
sketch9.addGeometry(Part.LineSegment(V(8, 59.7, 0), V(8, 56.9, 0)), False)
sketch9.addGeometry(Part.ArcOfCircle(Part.Circle(V(0, 0, 0), V(0, 0, 1), 57.5), math.radians(53), math.radians(82)), False)
sketch9.addGeometry(Part.LineSegment(V(34.6, 45.9, 0), V(36.6, 47.9, 0)), False)
sketch9.addGeometry(Part.ArcOfCircle(Part.Circle(V(38, 46.5, 0), V(0, 0, 1), 2), math.radians(45), math.radians(135)), False)
sketch9.addGeometry(Part.LineSegment(V(39.4, 47.9, 0), V(47.9, 39.4, 0)), False)
sketch9.addGeometry(Part.ArcOfCircle(Part.Circle(V(46.5, 38, 0), V(0, 0, 1), 2), math.radians(-45), math.radians(45)), False)
sketch9.addGeometry(Part.LineSegment(V(47.9, 36.6, 0), V(45.9, 34.6, 0)), False)
sketch9.addGeometry(Part.ArcOfCircle(Part.Circle(V(0, 0, 0), V(0, 0, 1), 57.5), math.radians(8), math.radians(37)), False)
sketch9.addGeometry(Part.LineSegment(V(56.9, 8, 0), V(59.7, 8, 0)), False)
sketch9.addGeometry(Part.ArcOfCircle(Part.Circle(V(59.7, 6, 0), V(0, 0, 1), 2), math.radians(0), math.radians(90)), False)
sketch9.addGeometry(Part.LineSegment(V(61.7, 6, 0), V(61.7, -6, 0)), False)
sketch9.addGeometry(Part.ArcOfCircle(Part.Circle(V(59.7, -6, 0), V(0, 0, 1), 2), math.radians(-90), math.radians(0)), False)
sketch9.addGeometry(Part.LineSegment(V(59.7, -8, 0), V(56.9, -8, 0)), False)
sketch9.addGeometry(Part.ArcOfCircle(Part.Circle(V(0, 0, 0), V(0, 0, 1), 57.5), math.radians(-37), math.radians(-8)), False)
sketch9.addGeometry(Part.LineSegment(V(45.9, -34.6, 0), V(47.9, -36.6, 0)), False)
sketch9.addGeometry(Part.ArcOfCircle(Part.Circle(V(46.5, -38, 0), V(0, 0, 1), 2), math.radians(-45), math.radians(45)), False)
sketch9.addGeometry(Part.LineSegment(V(47.9, -39.4, 0), V(39.4, -47.9, 0)), False)
sketch9.addGeometry(Part.ArcOfCircle(Part.Circle(V(38, -46.5, 0), V(0, 0, 1), 2), math.radians(-135), math.radians(-45)), False)
sketch9.addGeometry(Part.LineSegment(V(36.6, -47.9, 0), V(34.6, -45.9, 0)), False)
sketch9.addGeometry(Part.ArcOfCircle(Part.Circle(V(0, 0, 0), V(0, 0, 1), 57.5), math.radians(-82), math.radians(-53)), False)
sketch9.addGeometry(Part.LineSegment(V(8, -56.9, 0), V(8, -59.7, 0)), False)
sketch9.addGeometry(Part.ArcOfCircle(Part.Circle(V(6, -59.7, 0), V(0, 0, 1), 2), math.radians(-90), math.radians(0)), False)
sketch9.addConstraint(Sketcher.Constraint("Coincident", 0, 2, 1, 1))
sketch9.addConstraint(Sketcher.Constraint("Coincident", 1, 2, 2, 1))
sketch9.addConstraint(Sketcher.Constraint("Coincident", 2, 2, 3, 1))
sketch9.addConstraint(Sketcher.Constraint("Coincident", 3, 2, 4, 1))
sketch9.addConstraint(Sketcher.Constraint("Coincident", 4, 2, 5, 1))
sketch9.addConstraint(Sketcher.Constraint("Coincident", 5, 2, 6, 1))
sketch9.addConstraint(Sketcher.Constraint("Coincident", 6, 2, 7, 1))
sketch9.addConstraint(Sketcher.Constraint("Coincident", 7, 2, 8, 1))
sketch9.addConstraint(Sketcher.Constraint("Tangent", 8, 2, 9, 2))
sketch9.addConstraint(Sketcher.Constraint("Tangent", 9, 1, 10, 1))
sketch9.addConstraint(Sketcher.Constraint("Coincident", 10, 2, 11, 2))
sketch9.addConstraint(Sketcher.Constraint("Coincident", 11, 1, 12, 1))
sketch9.addConstraint(Sketcher.Constraint("Tangent", 12, 2, 13, 2))
sketch9.addConstraint(Sketcher.Constraint("Tangent", 13, 1, 14, 1))
sketch9.addConstraint(Sketcher.Constraint("Tangent", 14, 2, 15, 2))
sketch9.addConstraint(Sketcher.Constraint("Tangent", 15, 1, 16, 1))
sketch9.addConstraint(Sketcher.Constraint("Coincident", 16, 2, 17, 2))
sketch9.addConstraint(Sketcher.Constraint("Coincident", 17, 1, 18, 1))
sketch9.addConstraint(Sketcher.Constraint("Tangent", 18, 2, 19, 2))
sketch9.addConstraint(Sketcher.Constraint("Tangent", 19, 1, 20, 1))
sketch9.addConstraint(Sketcher.Constraint("Tangent", 20, 2, 21, 2))
sketch9.addConstraint(Sketcher.Constraint("Tangent", 21, 1, 22, 1))
sketch9.addConstraint(Sketcher.Constraint("Coincident", 22, 2, 23, 2))
sketch9.addConstraint(Sketcher.Constraint("Coincident", 23, 1, 24, 1))
sketch9.addConstraint(Sketcher.Constraint("Tangent", 24, 2, 25, 2))
sketch9.addConstraint(Sketcher.Constraint("Tangent", 25, 1, 26, 1))
sketch9.addConstraint(Sketcher.Constraint("Tangent", 26, 2, 27, 2))
sketch9.addConstraint(Sketcher.Constraint("Tangent", 27, 1, 28, 1))
sketch9.addConstraint(Sketcher.Constraint("Coincident", 28, 2, 29, 2))
sketch9.addConstraint(Sketcher.Constraint("Coincident", 29, 1, 30, 1))
sketch9.addConstraint(Sketcher.Constraint("Tangent", 30, 2, 31, 2))
sketch9.addConstraint(Sketcher.Constraint("Tangent", 31, 1, 0, 1))
sketch9.addConstraint(Sketcher.Constraint("Horizontal", 0))
sketch9.addConstraint(Sketcher.Constraint("Vertical", 1))
sketch9.addConstraint(Sketcher.Constraint("Vertical", 3))
sketch9.addConstraint(Sketcher.Constraint("Vertical", 5))
sketch9.addConstraint(Sketcher.Constraint("Vertical", 7))
sketch9.addConstraint(Sketcher.Constraint("Horizontal", 8))
sketch9.addConstraint(Sketcher.Constraint("Vertical", 10))
sketch9.addConstraint(Sketcher.Constraint("Horizontal", 18))
sketch9.addConstraint(Sketcher.Constraint("Vertical", 20))
sketch9.addConstraint(Sketcher.Constraint("Horizontal", 22))
sketch9.addConstraint(Sketcher.Constraint("Vertical", 30))
sketch9.addConstraint(Sketcher.Constraint("Coincident", 4, 3, -1, 1))
sketch9.addConstraint(Sketcher.Constraint("Coincident", 11, 3, -1, 1))
sketch9.addConstraint(Sketcher.Constraint("Coincident", 17, 3, -1, 1))
sketch9.addConstraint(Sketcher.Constraint("Coincident", 23, 3, -1, 1))
sketch9.addConstraint(Sketcher.Constraint("Coincident", 29, 3, -1, 1))
sketch9.addConstraint(Sketcher.Constraint("Equal", 2, 6))
sketch9.addConstraint(Sketcher.Constraint("Equal", 9, 13))
sketch9.addConstraint(Sketcher.Constraint("Equal", 13, 15))
sketch9.addConstraint(Sketcher.Constraint("Equal", 11, 17))
sketch9.addConstraint(Sketcher.Constraint("Equal", 15, 19))
sketch9.addConstraint(Sketcher.Constraint("Equal", 19, 21))
sketch9.addConstraint(Sketcher.Constraint("Equal", 17, 23))
sketch9.addConstraint(Sketcher.Constraint("Equal", 21, 25))
sketch9.addConstraint(Sketcher.Constraint("Equal", 25, 27))
sketch9.addConstraint(Sketcher.Constraint("Equal", 23, 29))
sketch9.addConstraint(Sketcher.Constraint("Equal", 27, 31))
sketch9.addConstraint(Sketcher.Constraint("Symmetric", 2, 3, 6, 3, -1, 1))
sketch9.addConstraint(Sketcher.Constraint("Symmetric", 0, 2, 7, 2, -1, 1))
sketch9.addConstraint(Sketcher.Constraint("Symmetric", 15, 3, 25, 3, -1))
sketch9.addConstraint(Sketcher.Constraint("Symmetric", 13, 3, 27, 3, -1))
sketch9.addConstraint(Sketcher.Constraint("PointOnObject", 2, 3, -2))
sketch9.addConstraint(Sketcher.Constraint("PointOnObject", 0, 2, -2))
sketch9.addConstraint(Sketcher.Constraint("PointOnObject", 2, 2, -2))
sketch9.addConstraint(Sketcher.Constraint("PointOnObject", 4, 2, -2))
sketch9.addConstraint(Sketcher.Constraint("Perpendicular", 12, 14))
sketch9.addConstraint(Sketcher.Constraint("Perpendicular", 14, 16))
sketch9.addConstraint(Sketcher.Constraint("Perpendicular", 16, 24))
sketch9.addConstraint(Sketcher.Constraint("Perpendicular", 24, 26))
sketch9.addConstraint(Sketcher.Constraint("Perpendicular", 26, 28))
sketch9.addConstraint(Sketcher.Constraint("Vertical", 9, 3, 31, 3))
sketch9.addConstraint(Sketcher.Constraint("Vertical", 17, 1, 22, 2))
sketch9.addConstraint(Sketcher.Constraint("Equal", 22, 10))
sketch9.addConstraint(Sketcher.Constraint("Equal", 12, 16))
sketch9.addConstraint(Sketcher.Constraint("Radius", 9, 2.0))
sketch9.addConstraint(Sketcher.Constraint("Radius", 2, 2.5))
sketch9.addConstraint(Sketcher.Constraint("Radius", 4, 3.5))
sketch9.addConstraint(Sketcher.Constraint("Radius", 11, 57.5))
sketch9.addConstraint(Sketcher.Constraint("DistanceX", 0, 2, 0, 1, 6.0))
sketch9.addConstraint(Sketcher.Constraint("DistanceY", 3, 1, 3, 2, 44.0))
sketch9.addConstraint(Sketcher.Constraint("DistanceY", 20, 2, 20, 1, 12.0))
sketch9.addConstraint(Sketcher.Constraint("Distance", 14, 12.0))
sketch9.addConstraint(Sketcher.Constraint("DistanceX", 18, 1, 18, 2, 2.8))
sketch9.addConstraint(Sketcher.Constraint("Distance", 12, 2.8))
pocket4 = body.newObject("PartDesign::Pocket", "Pocket003")
pocket4.Profile = sketch9
pocket4.Length = 10

# Sketch on YZ plane
sketch10 = body.newObject("Sketcher::SketchObject", "Sketch009")
sketch10.AttachmentSupport = (doc.getObject("YZ_Plane"), [""])
sketch10.MapMode = "FlatFace"
sketch10.AttachmentOffset = App.Placement(V(0, 0, 22), App.Rotation())
sketch10.addGeometry(Part.LineSegment(V(12, -5, 0), V(7, -5, 0)), False)
sketch10.addGeometry(Part.LineSegment(V(7, -5, 0), V(7, -15, 0)), False)
sketch10.addGeometry(Part.LineSegment(V(7, -15, 0), V(12, -15, 0)), False)
sketch10.addGeometry(Part.LineSegment(V(12, -15, 0), V(12, -5, 0)), False)
sketch10.addConstraint(Sketcher.Constraint("Coincident", 0, 2, 1, 1))
sketch10.addConstraint(Sketcher.Constraint("Coincident", 1, 2, 2, 1))
sketch10.addConstraint(Sketcher.Constraint("Coincident", 2, 2, 3, 1))
sketch10.addConstraint(Sketcher.Constraint("Coincident", 3, 2, 0, 1))
sketch10.addConstraint(Sketcher.Constraint("Horizontal", 0))
sketch10.addConstraint(Sketcher.Constraint("Vertical", 1))
sketch10.addConstraint(Sketcher.Constraint("Horizontal", 2))
sketch10.addConstraint(Sketcher.Constraint("Vertical", 3))
sketch10.addConstraint(Sketcher.Constraint("DistanceX", 0, 2, 0, 1, 5.0))
sketch10.addConstraint(Sketcher.Constraint("DistanceY", 1, 2, 1, 1, 10.0))
sketch10.addConstraint(Sketcher.Constraint("DistanceX", -1, 1, 0, 2, 7.0))
sketch10.addConstraint(Sketcher.Constraint("DistanceY", 0, 2, -1, 1, 5.0))
pad6 = body.newObject("PartDesign::Pad", "Pad005")
pad6.Profile = sketch10
pad6.Length = 5

# Sketch on XZ plane
sketch11 = body.newObject("Sketcher::SketchObject", "Sketch010")
sketch11.AttachmentSupport = (doc.getObject("XZ_Plane"), [""])
sketch11.MapMode = "FlatFace"
sketch11.AttachmentOffset = App.Placement(V(0, 0, -102), App.Rotation())
sketch11.addGeometry(Part.LineSegment(V(0, -15, 0), V(0, -5, 0)), False)
sketch11.addGeometry(Part.LineSegment(V(0, -5, 0), V(5, -5, 0)), False)
sketch11.addGeometry(Part.LineSegment(V(5, -5, 0), V(5, -15, 0)), False)
sketch11.addGeometry(Part.LineSegment(V(5, -15, 0), V(0, -15, 0)), False)
sketch11.addConstraint(Sketcher.Constraint("Coincident", 0, 2, 1, 1))
sketch11.addConstraint(Sketcher.Constraint("Coincident", 1, 2, 2, 1))
sketch11.addConstraint(Sketcher.Constraint("Coincident", 2, 2, 3, 1))
sketch11.addConstraint(Sketcher.Constraint("Coincident", 3, 2, 0, 1))
sketch11.addConstraint(Sketcher.Constraint("Vertical", 0))
sketch11.addConstraint(Sketcher.Constraint("Horizontal", 1))
sketch11.addConstraint(Sketcher.Constraint("Vertical", 2))
sketch11.addConstraint(Sketcher.Constraint("Horizontal", 3))
sketch11.addConstraint(Sketcher.Constraint("PointOnObject", 0, 2, -2))
sketch11.addConstraint(Sketcher.Constraint("DistanceX", 1, 1, 1, 2, 5.0))
sketch11.addConstraint(Sketcher.Constraint("DistanceY", 0, 1, 0, 2, 10.0))
sketch11.addConstraint(Sketcher.Constraint("DistanceY", 0, 2, -1, 1, 5.0))
pad7 = body.newObject("PartDesign::Pad", "Pad006")
pad7.Profile = sketch11
pad7.Length = 10
pad7.Reversed = True

# Sketch on YZ plane
sketch12 = body.newObject("Sketcher::SketchObject", "Sketch011")
sketch12.AttachmentSupport = (doc.getObject("YZ_Plane"), [""])
sketch12.MapMode = "FlatFace"
sketch12.AttachmentOffset = App.Placement(V(0, 0, 5), App.Rotation())
sketch12.addGeometry(Part.Circle(V(107, -10, 0), V(0, 0, 1), 2), False)
sketch12.addConstraint(Sketcher.Constraint("Diameter", 0, 4.0))
sketch12.addConstraint(Sketcher.Constraint("DistanceX", -1, 1, 0, 3, 107.0))
sketch12.addConstraint(Sketcher.Constraint("DistanceY", 0, 3, -1, 1, 10.0))
pocket5 = body.newObject("PartDesign::Pocket", "Pocket004")
pocket5.Profile = sketch12
pocket5.Length = 5
doc.recompute()

fillet4 = body.newObject("PartDesign::Fillet", "Fillet003")
fillet4.Base = (pocket5, edges_at(pocket5, [(27, 9.5, -5), (5, 102, -10)]))
fillet4.Radius = 2

doc.recompute()
